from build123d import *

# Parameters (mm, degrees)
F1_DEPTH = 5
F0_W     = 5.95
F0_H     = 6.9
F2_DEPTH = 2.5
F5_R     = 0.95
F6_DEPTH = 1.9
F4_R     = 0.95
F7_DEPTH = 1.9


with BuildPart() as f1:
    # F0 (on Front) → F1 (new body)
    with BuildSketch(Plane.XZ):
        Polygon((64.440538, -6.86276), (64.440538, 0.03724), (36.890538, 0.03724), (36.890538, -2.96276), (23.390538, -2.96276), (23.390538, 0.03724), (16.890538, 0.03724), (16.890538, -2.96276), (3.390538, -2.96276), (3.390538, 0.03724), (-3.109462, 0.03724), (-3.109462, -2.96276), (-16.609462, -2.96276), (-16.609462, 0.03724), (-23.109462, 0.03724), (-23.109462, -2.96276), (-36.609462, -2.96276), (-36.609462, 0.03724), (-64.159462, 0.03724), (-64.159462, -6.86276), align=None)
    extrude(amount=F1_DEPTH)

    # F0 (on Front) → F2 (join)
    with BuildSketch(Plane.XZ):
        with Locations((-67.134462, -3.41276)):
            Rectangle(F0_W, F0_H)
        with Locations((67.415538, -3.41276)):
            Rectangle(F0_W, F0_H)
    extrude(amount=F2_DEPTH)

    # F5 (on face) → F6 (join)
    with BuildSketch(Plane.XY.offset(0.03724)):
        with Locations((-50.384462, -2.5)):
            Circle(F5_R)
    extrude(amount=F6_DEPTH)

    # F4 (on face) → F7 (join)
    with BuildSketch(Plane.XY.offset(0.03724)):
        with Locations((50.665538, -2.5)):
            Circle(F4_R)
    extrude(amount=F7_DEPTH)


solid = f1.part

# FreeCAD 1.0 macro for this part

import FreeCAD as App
import Part
import Sketcher
Q = App.Units.Quantity


def add_polygon(sketch, points):
    """Adds a closed chain of lines whose ends are joined by coincident constraints."""
    first, n = sketch.GeometryCount, len(points)
    for a, b in zip(points, points[1:] + points[:1]):
        sketch.addGeometry(Part.LineSegment(App.Vector(*a, 0), App.Vector(*b, 0)), False)
    for i in range(n):
        sketch.addConstraint(Sketcher.Constraint("Coincident", first + i, 2, first + (i + 1) % n, 1))

doc = App.newDocument("Part")
body = doc.addObject("PartDesign::Body", "Body")

# Sketch on XZ plane
sketch1 = body.newObject("Sketcher::SketchObject", "Sketch")
sketch1.AttachmentSupport = (doc.getObject("XZ_Plane"), [""])
sketch1.MapMode = "FlatFace"
add_polygon(sketch1, [(64.440538, -6.86276), (64.440538, 0.03724), (36.890538, 0.03724), (36.890538, -2.96276), (23.390538, -2.96276), (23.390538, 0.03724), (16.890538, 0.03724), (16.890538, -2.96276), (3.390538, -2.96276), (3.390538, 0.03724), (-3.109462, 0.03724), (-3.109462, -2.96276), (-16.609462, -2.96276), (-16.609462, 0.03724), (-23.109462, 0.03724), (-23.109462, -2.96276), (-36.609462, -2.96276), (-36.609462, 0.03724), (-64.159462, 0.03724), (-64.159462, -6.86276)])  # lines 0-19
sketch1.addConstraint([
    Sketcher.Constraint("Vertical", 0),
    Sketcher.Constraint("Horizontal", 1),
    Sketcher.Constraint("Vertical", 2),
    Sketcher.Constraint("Horizontal", 3),
    Sketcher.Constraint("Vertical", 4),
    Sketcher.Constraint("Horizontal", 5),
    Sketcher.Constraint("Vertical", 6),
    Sketcher.Constraint("Horizontal", 7),
    Sketcher.Constraint("Vertical", 8),
    Sketcher.Constraint("Horizontal", 9),
    Sketcher.Constraint("Vertical", 10),
    Sketcher.Constraint("Horizontal", 11),
    Sketcher.Constraint("Vertical", 12),
    Sketcher.Constraint("Horizontal", 13),
    Sketcher.Constraint("Vertical", 14),
    Sketcher.Constraint("Horizontal", 15),
    Sketcher.Constraint("Vertical", 16),
    Sketcher.Constraint("Horizontal", 17),
    Sketcher.Constraint("Vertical", 18),
    Sketcher.Constraint("Horizontal", 19),
    Sketcher.Constraint("Horizontal", 1, 2, 4, 2),
    Sketcher.Constraint("Horizontal", 3, 2, 6, 2),
    Sketcher.Constraint("Horizontal", 5, 2, 8, 2),
    Sketcher.Constraint("Horizontal", 7, 2, 10, 2),
    Sketcher.Constraint("Horizontal", 9, 2, 12, 2),
    Sketcher.Constraint("Horizontal", 11, 2, 14, 2),
    Sketcher.Constraint("Horizontal", 13, 2, 16, 2),
    Sketcher.Constraint("Equal", 3, 7),
    Sketcher.Constraint("Equal", 5, 9),
    Sketcher.Constraint("Equal", 7, 11),
    Sketcher.Constraint("Equal", 9, 13),
    Sketcher.Constraint("Equal", 11, 15),
    Sketcher.Constraint("Equal", 1, 17),
    Sketcher.Constraint("DistanceY", 2, 2, 2, 1, Q("3 mm")),
    Sketcher.Constraint("DistanceX", 3, 2, 3, 1, Q("13.5 mm")),
    Sketcher.Constraint("DistanceX", 5, 2, 5, 1, Q("6.5 mm")),
    Sketcher.Constraint("DistanceX", 19, 1, 19, 2, Q("128.6 mm")),
    Sketcher.Constraint("DistanceY", 0, 1, 0, 2, Q("6.9 mm")),
    Sketcher.Constraint("DistanceX", -1, 1, 0, 2, Q("64.440538 mm")),
    Sketcher.Constraint("DistanceY", -1, 1, 0, 2, Q("0.03724 mm")),
])
pad1 = body.newObject("PartDesign::Pad", "Pad")
pad1.Profile = sketch1
pad1.Length = 5

# Sketch on XZ plane
sketch2 = body.newObject("Sketcher::SketchObject", "Sketch001")
sketch2.AttachmentSupport = (doc.getObject("XZ_Plane"), [""])
sketch2.MapMode = "FlatFace"
add_polygon(sketch2, [(-70.109462, 0.03724), (-70.109462, -6.86276), (-64.159462, -6.86276), (-64.159462, 0.03724)])  # lines 0-3
add_polygon(sketch2, [(64.440538, 0.03724), (64.440538, -6.86276), (70.390538, -6.86276), (70.390538, 0.03724)])  # lines 4-7
sketch2.addConstraint([
    Sketcher.Constraint("Vertical", 0),
    Sketcher.Constraint("Horizontal", 1),
    Sketcher.Constraint("Vertical", 2),
    Sketcher.Constraint("Horizontal", 3),
    Sketcher.Constraint("Vertical", 4),
    Sketcher.Constraint("Horizontal", 5),
    Sketcher.Constraint("Vertical", 6),
    Sketcher.Constraint("Horizontal", 7),
    Sketcher.Constraint("Horizontal", 1, 2, 4, 2),
    Sketcher.Constraint("Horizontal", 3, 2, 6, 2),
    Sketcher.Constraint("Equal", 3, 5),
    Sketcher.Constraint("DistanceY", 0, 2, 0, 1, Q("6.9 mm")),
    Sketcher.Constraint("DistanceX", 1, 1, 1, 2, Q("5.95 mm")),
    Sketcher.Constraint("DistanceX", 1, 2, 4, 2, Q("128.6 mm")),
    Sketcher.Constraint("DistanceX", 0, 2, -1, 1, Q("70.109462 mm")),
    Sketcher.Constraint("DistanceY", 0, 2, -1, 1, Q("6.86276 mm")),
])
pad2 = body.newObject("PartDesign::Pad", "Pad001")
pad2.Profile = sketch2
pad2.Length = 2.5

# Sketch on XY plane
sketch3 = body.newObject("Sketcher::SketchObject", "Sketch002")
sketch3.AttachmentSupport = (doc.getObject("XY_Plane"), [""])
sketch3.MapMode = "FlatFace"
sketch3.AttachmentOffset = App.Placement(App.Vector(0, 0, 0.03724), App.Rotation())
sketch3.addGeometry(Part.Circle(App.Vector(-50.384462, -2.5, 0), App.Vector(0, 0, 1), 0.95), False)
sketch3.addConstraint([
    Sketcher.Constraint("Diameter", 0, Q("1.9 mm")),
    Sketcher.Constraint("DistanceY", 0, 3, -1, 1, Q("2.5 mm")),
    Sketcher.Constraint("DistanceX", 0, 3, -1, 1, Q("50.384462 mm")),
])
pad3 = body.newObject("PartDesign::Pad", "Pad002")
pad3.Profile = sketch3
pad3.Length = 1.9

# Sketch on XY plane
sketch4 = body.newObject("Sketcher::SketchObject", "Sketch003")
sketch4.AttachmentSupport = (doc.getObject("XY_Plane"), [""])
sketch4.MapMode = "FlatFace"
sketch4.AttachmentOffset = App.Placement(App.Vector(0, 0, 0.03724), App.Rotation())
sketch4.addGeometry(Part.Circle(App.Vector(50.665538, -2.5, 0), App.Vector(0, 0, 1), 0.95), False)
sketch4.addConstraint([
    Sketcher.Constraint("Diameter", 0, Q("1.9 mm")),
    Sketcher.Constraint("DistanceY", 0, 3, -1, 1, Q("2.5 mm")),
    Sketcher.Constraint("DistanceX", -1, 1, 0, 3, Q("50.665538 mm")),
])
pad4 = body.newObject("PartDesign::Pad", "Pad003")
pad4.Profile = sketch4
pad4.Length = 1.9

doc.recompute()
